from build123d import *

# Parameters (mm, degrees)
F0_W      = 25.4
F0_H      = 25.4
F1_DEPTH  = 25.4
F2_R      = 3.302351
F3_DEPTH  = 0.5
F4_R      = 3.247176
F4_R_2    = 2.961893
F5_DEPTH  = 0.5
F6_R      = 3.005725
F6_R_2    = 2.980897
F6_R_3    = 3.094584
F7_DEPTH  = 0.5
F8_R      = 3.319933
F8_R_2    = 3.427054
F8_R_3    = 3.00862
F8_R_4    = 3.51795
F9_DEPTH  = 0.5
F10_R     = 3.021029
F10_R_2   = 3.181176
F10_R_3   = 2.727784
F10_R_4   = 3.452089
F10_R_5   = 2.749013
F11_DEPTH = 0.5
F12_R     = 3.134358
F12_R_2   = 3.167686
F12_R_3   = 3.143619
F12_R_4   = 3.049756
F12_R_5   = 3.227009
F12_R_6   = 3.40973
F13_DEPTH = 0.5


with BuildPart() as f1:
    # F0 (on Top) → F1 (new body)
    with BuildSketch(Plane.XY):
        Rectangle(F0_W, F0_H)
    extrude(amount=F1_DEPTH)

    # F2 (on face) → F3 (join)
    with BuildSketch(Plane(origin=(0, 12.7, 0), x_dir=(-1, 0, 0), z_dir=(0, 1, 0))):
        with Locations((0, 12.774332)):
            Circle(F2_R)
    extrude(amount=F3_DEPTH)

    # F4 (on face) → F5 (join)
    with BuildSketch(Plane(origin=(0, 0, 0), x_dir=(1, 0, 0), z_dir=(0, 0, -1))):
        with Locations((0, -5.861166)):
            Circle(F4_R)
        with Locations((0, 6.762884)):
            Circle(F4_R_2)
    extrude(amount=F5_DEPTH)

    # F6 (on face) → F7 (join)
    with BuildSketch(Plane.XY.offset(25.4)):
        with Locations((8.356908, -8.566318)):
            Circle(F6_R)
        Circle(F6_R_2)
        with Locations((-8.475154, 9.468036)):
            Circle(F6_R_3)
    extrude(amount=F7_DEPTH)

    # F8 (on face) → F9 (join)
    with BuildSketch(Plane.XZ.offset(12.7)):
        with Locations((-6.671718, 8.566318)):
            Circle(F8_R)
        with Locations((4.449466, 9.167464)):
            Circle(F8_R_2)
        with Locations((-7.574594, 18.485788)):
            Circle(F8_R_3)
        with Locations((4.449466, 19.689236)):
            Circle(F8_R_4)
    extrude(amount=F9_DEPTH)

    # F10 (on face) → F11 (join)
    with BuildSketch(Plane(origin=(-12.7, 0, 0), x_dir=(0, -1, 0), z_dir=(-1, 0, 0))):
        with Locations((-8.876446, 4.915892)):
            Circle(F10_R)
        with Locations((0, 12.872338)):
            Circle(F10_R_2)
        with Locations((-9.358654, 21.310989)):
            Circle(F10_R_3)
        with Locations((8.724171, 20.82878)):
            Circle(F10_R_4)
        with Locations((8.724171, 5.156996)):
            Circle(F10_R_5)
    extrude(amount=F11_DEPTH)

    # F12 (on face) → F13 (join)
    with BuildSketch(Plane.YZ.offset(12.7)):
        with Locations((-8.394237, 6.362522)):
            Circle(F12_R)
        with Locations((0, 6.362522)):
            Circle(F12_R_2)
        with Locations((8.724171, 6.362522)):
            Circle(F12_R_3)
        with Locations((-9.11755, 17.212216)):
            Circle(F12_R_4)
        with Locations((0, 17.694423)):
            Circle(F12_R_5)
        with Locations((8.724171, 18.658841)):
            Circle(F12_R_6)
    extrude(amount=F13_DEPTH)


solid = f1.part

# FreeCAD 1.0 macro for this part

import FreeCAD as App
import Part
import Sketcher
from FreeCAD import Vector
Q = App.Units.Quantity

doc = App.newDocument("Part")
body = doc.addObject("PartDesign::Body", "Body")

# Sketch on XY plane
sketch1 = body.newObject("Sketcher::SketchObject", "Sketch")
sketch1.AttachmentSupport = (doc.getObject("XY_Plane"), [""])
sketch1.MapMode = "FlatFace"
sketch1.addGeometry(Part.LineSegment(Vector(-13, 13, 0), Vector(-13, -13, 0)), False)
sketch1.addGeometry(Part.LineSegment(Vector(-13, -13, 0), Vector(13, -13, 0)), False)
sketch1.addGeometry(Part.LineSegment(Vector(13, -13, 0), Vector(13, 13, 0)), False)
sketch1.addGeometry(Part.LineSegment(Vector(13, 13, 0), Vector(-13, 13, 0)), False)
sketch1.addConstraint(Sketcher.Constraint("Coincident", 0, 2, 1, 1))
sketch1.addConstraint(Sketcher.Constraint("Coincident", 1, 2, 2, 1))
sketch1.addConstraint(Sketcher.Constraint("Coincident", 2, 2, 3, 1))
sketch1.addConstraint(Sketcher.Constraint("Coincident", 3, 2, 0, 1))
sketch1.addConstraint(Sketcher.Constraint("Vertical", 0))
sketch1.addConstraint(Sketcher.Constraint("Horizontal", 1))
sketch1.addConstraint(Sketcher.Constraint("Vertical", 2))
sketch1.addConstraint(Sketcher.Constraint("Horizontal", 3))
sketch1.addConstraint(Sketcher.Constraint("Symmetric", 0, 2, 2, 2, -1, 1))
sketch1.addConstraint(Sketcher.Constraint("Equal", 3, 0))
sketch1.addConstraint(Sketcher.Constraint("DistanceX", 1, 1, 1, 2, Q("25.4 mm")))
pad1 = body.newObject("PartDesign::Pad", "Pad")
pad1.Profile = sketch1
pad1.Length = 25.4

# Sketch on XZ plane
sketch2 = body.newObject("Sketcher::SketchObject", "Sketch001")
sketch2.AttachmentSupport = (doc.getObject("XZ_Plane"), [""])
sketch2.MapMode = "FlatFace"
sketch2.AttachmentOffset = App.Placement(Vector(0, 0, -12.7), App.Rotation())
sketch2.addGeometry(Part.Circle(Vector(0, 12.8, 0), Vector(0, 0, 1), 3.3), False)
sketch2.addConstraint(Sketcher.Constraint("PointOnObject", 0, 3, -2))
sketch2.addConstraint(Sketcher.Constraint("Diameter", 0, Q("6.604702 mm")))
sketch2.addConstraint(Sketcher.Constraint("DistanceY", -1, 1, 0, 3, Q("12.774332 mm")))
pad2 = body.newObject("PartDesign::Pad", "Pad001")
pad2.Profile = sketch2
pad2.Length = 0.5
pad2.Reversed = True

# Sketch on XY plane
sketch3 = body.newObject("Sketcher::SketchObject", "Sketch002")
sketch3.AttachmentSupport = (doc.getObject("XY_Plane"), [""])
sketch3.MapMode = "FlatFace"
sketch3.addGeometry(Part.Circle(Vector(0, 5.9, 0), Vector(0, 0, 1), 3.2), False)
sketch3.addGeometry(Part.Circle(Vector(0, -6.8, 0), Vector(0, 0, 1), 3), False)
sketch3.addConstraint(Sketcher.Constraint("PointOnObject", 0, 3, -2))
sketch3.addConstraint(Sketcher.Constraint("PointOnObject", 1, 3, -2))
sketch3.addConstraint(Sketcher.Constraint("Diameter", 0, Q("6.494352 mm")))
sketch3.addConstraint(Sketcher.Constraint("Diameter", 1, Q("5.923786 mm")))
sketch3.addConstraint(Sketcher.Constraint("DistanceY", 1, 3, 0, 3, Q("12.62405 mm")))
sketch3.addConstraint(Sketcher.Constraint("DistanceY", -1, 1, 0, 3, Q("5.861166 mm")))
pad3 = body.newObject("PartDesign::Pad", "Pad002")
pad3.Profile = sketch3
pad3.Length = 0.5
pad3.Reversed = True

# Sketch on XY plane
sketch4 = body.newObject("Sketcher::SketchObject", "Sketch003")
sketch4.AttachmentSupport = (doc.getObject("XY_Plane"), [""])
sketch4.MapMode = "FlatFace"
sketch4.AttachmentOffset = App.Placement(Vector(0, 0, 25.4), App.Rotation())
sketch4.addGeometry(Part.Circle(Vector(8.4, -8.6, 0), Vector(0, 0, 1), 3), False)
sketch4.addGeometry(Part.Circle(Vector(0, 0, 0), Vector(0, 0, 1), 3), False)
sketch4.addGeometry(Part.Circle(Vector(-8.5, 9.5, 0), Vector(0, 0, 1), 3.1), False)
sketch4.addConstraint(Sketcher.Constraint("Coincident", 1, 3, -1, 1))
sketch4.addConstraint(Sketcher.Constraint("Diameter", 0, Q("6.01145 mm")))
sketch4.addConstraint(Sketcher.Constraint("Diameter", 1, Q("5.961794 mm")))
sketch4.addConstraint(Sketcher.Constraint("Diameter", 2, Q("6.189168 mm")))
sketch4.addConstraint(Sketcher.Constraint("DistanceX", -1, 1, 0, 3, Q("8.356908 mm")))
sketch4.addConstraint(Sketcher.Constraint("DistanceY", 0, 3, -1, 1, Q("8.566318 mm")))
sketch4.addConstraint(Sketcher.Constraint("DistanceX", 2, 3, -1, 1, Q("8.475154 mm")))
sketch4.addConstraint(Sketcher.Constraint("DistanceY", -1, 1, 2, 3, Q("9.468036 mm")))
pad4 = body.newObject("PartDesign::Pad", "Pad003")
pad4.Profile = sketch4
pad4.Length = 0.5

# Sketch on XZ plane
sketch5 = body.newObject("Sketcher::SketchObject", "Sketch004")
sketch5.AttachmentSupport = (doc.getObject("XZ_Plane"), [""])
sketch5.MapMode = "FlatFace"
sketch5.AttachmentOffset = App.Placement(Vector(0, 0, 12.7), App.Rotation())
sketch5.addGeometry(Part.Circle(Vector(-6.7, 8.6, 0), Vector(0, 0, 1), 3.3), False)
sketch5.addGeometry(Part.Circle(Vector(4.4, 9.2, 0), Vector(0, 0, 1), 3.4), False)
sketch5.addGeometry(Part.Circle(Vector(-7.6, 18.5, 0), Vector(0, 0, 1), 3), False)
sketch5.addGeometry(Part.Circle(Vector(4.4, 19.7, 0), Vector(0, 0, 1), 3.5), False)
sketch5.addConstraint(Sketcher.Constraint("Vertical", 1, 3, 3, 3))
sketch5.addConstraint(Sketcher.Constraint("Diameter", 3, Q("7.0359 mm")))
sketch5.addConstraint(Sketcher.Constraint("Diameter", 2, Q("6.01724 mm")))
sketch5.addConstraint(Sketcher.Constraint("Diameter", 0, Q("6.639866 mm")))
sketch5.addConstraint(Sketcher.Constraint("Diameter", 1, Q("6.854108 mm")))
sketch5.addConstraint(Sketcher.Constraint("DistanceX", 0, 3, -1, 1, Q("6.671718 mm")))
sketch5.addConstraint(Sketcher.Constraint("DistanceY", -1, 1, 0, 3, Q("8.566318 mm")))
sketch5.addConstraint(Sketcher.Constraint("DistanceY", 0, 3, 2, 3, Q("9.91947 mm")))
sketch5.addConstraint(Sketcher.Constraint("DistanceX", 2, 3, 1, 3, Q("12.02406 mm")))
sketch5.addConstraint(Sketcher.Constraint("DistanceY", 2, 3, 3, 3, Q("1.203448 mm")))
sketch5.addConstraint(Sketcher.Constraint("DistanceX", -1, 1, 1, 3, Q("4.449466 mm")))
sketch5.addConstraint(Sketcher.Constraint("DistanceY", -1, 1, 1, 3, Q("9.167464 mm")))
pad5 = body.newObject("PartDesign::Pad", "Pad004")
pad5.Profile = sketch5
pad5.Length = 0.5

# Sketch on YZ plane
sketch6 = body.newObject("Sketcher::SketchObject", "Sketch005")
sketch6.AttachmentSupport = (doc.getObject("YZ_Plane"), [""])
sketch6.MapMode = "FlatFace"
sketch6.AttachmentOffset = App.Placement(Vector(0, 0, -12.7), App.Rotation())
sketch6.addGeometry(Part.Circle(Vector(8.9, 4.9, 0), Vector(0, 0, 1), 3), False)
sketch6.addGeometry(Part.Circle(Vector(0, 12.9, 0), Vector(0, 0, 1), 3.2), False)
sketch6.addGeometry(Part.Circle(Vector(9.4, 21.3, 0), Vector(0, 0, 1), 2.7), False)
sketch6.addGeometry(Part.Circle(Vector(-8.7, 20.8, 0), Vector(0, 0, 1), 3.5), False)
sketch6.addGeometry(Part.Circle(Vector(-8.7, 5.2, 0), Vector(0, 0, 1), 2.7), False)
sketch6.addConstraint(Sketcher.Constraint("PointOnObject", 1, 3, -2))
sketch6.addConstraint(Sketcher.Constraint("Vertical", 3, 3, 4, 3))
sketch6.addConstraint(Sketcher.Constraint("Diameter", 1, Q("6.362352 mm")))
sketch6.addConstraint(Sketcher.Constraint("Diameter", 2, Q("5.455568 mm")))
sketch6.addConstraint(Sketcher.Constraint("Diameter", 0, Q("6.042058 mm")))
sketch6.addConstraint(Sketcher.Constraint("Diameter", 3, Q("6.904178 mm")))
sketch6.addConstraint(Sketcher.Constraint("Diameter", 4, Q("5.498026 mm")))
sketch6.addConstraint(Sketcher.Constraint("DistanceY", -1, 1, 2, 3, Q("21.310989 mm")))
sketch6.addConstraint(Sketcher.Constraint("DistanceX", 3, 3, -1, 1, Q("8.724171 mm")))
sketch6.addConstraint(Sketcher.Constraint("DistanceY", -1, 1, 3, 3, Q("20.82878 mm")))
sketch6.addConstraint(Sketcher.Constraint("DistanceY", 1, 3, 2, 3, Q("8.438651 mm")))
sketch6.addConstraint(Sketcher.Constraint("DistanceY", 4, 3, 1, 3, Q("7.715342 mm")))
sketch6.addConstraint(Sketcher.Constraint("DistanceX", -1, 1, 0, 3, Q("8.876446 mm")))
sketch6.addConstraint(Sketcher.Constraint("DistanceY", -1, 1, 0, 3, Q("4.915892 mm")))
sketch6.addConstraint(Sketcher.Constraint("DistanceX", -1, 1, 2, 3, Q("9.358654 mm")))
pad6 = body.newObject("PartDesign::Pad", "Pad005")
pad6.Profile = sketch6
pad6.Length = 0.5
pad6.Reversed = True

# Sketch on YZ plane
sketch7 = body.newObject("Sketcher::SketchObject", "Sketch006")
sketch7.AttachmentSupport = (doc.getObject("YZ_Plane"), [""])
sketch7.MapMode = "FlatFace"
sketch7.AttachmentOffset = App.Placement(Vector(0, 0, 12.7), App.Rotation())
sketch7.addGeometry(Part.Circle(Vector(-8.4, 6.4, 0), Vector(0, 0, 1), 3.1), False)
sketch7.addGeometry(Part.Circle(Vector(0, 6.4, 0), Vector(0, 0, 1), 3.2), False)
sketch7.addGeometry(Part.Circle(Vector(8.7, 6.4, 0), Vector(0, 0, 1), 3.1), False)
sketch7.addGeometry(Part.Circle(Vector(-9.1, 17.2, 0), Vector(0, 0, 1), 3), False)
sketch7.addGeometry(Part.Circle(Vector(0, 17.7, 0), Vector(0, 0, 1), 3.2), False)
sketch7.addGeometry(Part.Circle(Vector(8.7, 18.7, 0), Vector(0, 0, 1), 3.4), False)
sketch7.addConstraint(Sketcher.Constraint("PointOnObject", 1, 3, -2))
sketch7.addConstraint(Sketcher.Constraint("PointOnObject", 4, 3, -2))
sketch7.addConstraint(Sketcher.Constraint("Horizontal", 0, 3, 1, 3))
sketch7.addConstraint(Sketcher.Constraint("Horizontal", 1, 3, 2, 3))
sketch7.addConstraint(Sketcher.Constraint("Vertical", 2, 3, 5, 3))
sketch7.addConstraint(Sketcher.Constraint("Diameter", 1, Q("6.335372 mm")))
sketch7.addConstraint(Sketcher.Constraint("Diameter", 2, Q("6.287238 mm")))
sketch7.addConstraint(Sketcher.Constraint("Diameter", 3, Q("6.099512 mm")))
sketch7.addConstraint(Sketcher.Constraint("Diameter", 5, Q("6.81946 mm")))
sketch7.addConstraint(Sketcher.Constraint("Diameter", 0, Q("6.268716 mm")))
sketch7.addConstraint(Sketcher.Constraint("Diameter", 4, Q("6.454018 mm")))
sketch7.addConstraint(Sketcher.Constraint("DistanceY", 1, 3, 4, 3, Q("11.331901 mm")))
sketch7.addConstraint(Sketcher.Constraint("DistanceX", -1, 1, 2, 3, Q("8.724171 mm")))
sketch7.addConstraint(Sketcher.Constraint("DistanceX", 3, 3, -1, 1, Q("9.11755 mm")))
sketch7.addConstraint(Sketcher.Constraint("DistanceY", -1, 1, 5, 3, Q("18.658841 mm")))
sketch7.addConstraint(Sketcher.Constraint("DistanceX", 0, 3, 2, 3, Q("17.118408 mm")))
sketch7.addConstraint(Sketcher.Constraint("DistanceY", 2, 3, 5, 3, Q("12.296319 mm")))
sketch7.addConstraint(Sketcher.Constraint("DistanceY", -1, 1, 3, 3, Q("17.212216 mm")))
pad7 = body.newObject("PartDesign::Pad", "Pad006")
pad7.Profile = sketch7
pad7.Length = 0.5

doc.recompute()
